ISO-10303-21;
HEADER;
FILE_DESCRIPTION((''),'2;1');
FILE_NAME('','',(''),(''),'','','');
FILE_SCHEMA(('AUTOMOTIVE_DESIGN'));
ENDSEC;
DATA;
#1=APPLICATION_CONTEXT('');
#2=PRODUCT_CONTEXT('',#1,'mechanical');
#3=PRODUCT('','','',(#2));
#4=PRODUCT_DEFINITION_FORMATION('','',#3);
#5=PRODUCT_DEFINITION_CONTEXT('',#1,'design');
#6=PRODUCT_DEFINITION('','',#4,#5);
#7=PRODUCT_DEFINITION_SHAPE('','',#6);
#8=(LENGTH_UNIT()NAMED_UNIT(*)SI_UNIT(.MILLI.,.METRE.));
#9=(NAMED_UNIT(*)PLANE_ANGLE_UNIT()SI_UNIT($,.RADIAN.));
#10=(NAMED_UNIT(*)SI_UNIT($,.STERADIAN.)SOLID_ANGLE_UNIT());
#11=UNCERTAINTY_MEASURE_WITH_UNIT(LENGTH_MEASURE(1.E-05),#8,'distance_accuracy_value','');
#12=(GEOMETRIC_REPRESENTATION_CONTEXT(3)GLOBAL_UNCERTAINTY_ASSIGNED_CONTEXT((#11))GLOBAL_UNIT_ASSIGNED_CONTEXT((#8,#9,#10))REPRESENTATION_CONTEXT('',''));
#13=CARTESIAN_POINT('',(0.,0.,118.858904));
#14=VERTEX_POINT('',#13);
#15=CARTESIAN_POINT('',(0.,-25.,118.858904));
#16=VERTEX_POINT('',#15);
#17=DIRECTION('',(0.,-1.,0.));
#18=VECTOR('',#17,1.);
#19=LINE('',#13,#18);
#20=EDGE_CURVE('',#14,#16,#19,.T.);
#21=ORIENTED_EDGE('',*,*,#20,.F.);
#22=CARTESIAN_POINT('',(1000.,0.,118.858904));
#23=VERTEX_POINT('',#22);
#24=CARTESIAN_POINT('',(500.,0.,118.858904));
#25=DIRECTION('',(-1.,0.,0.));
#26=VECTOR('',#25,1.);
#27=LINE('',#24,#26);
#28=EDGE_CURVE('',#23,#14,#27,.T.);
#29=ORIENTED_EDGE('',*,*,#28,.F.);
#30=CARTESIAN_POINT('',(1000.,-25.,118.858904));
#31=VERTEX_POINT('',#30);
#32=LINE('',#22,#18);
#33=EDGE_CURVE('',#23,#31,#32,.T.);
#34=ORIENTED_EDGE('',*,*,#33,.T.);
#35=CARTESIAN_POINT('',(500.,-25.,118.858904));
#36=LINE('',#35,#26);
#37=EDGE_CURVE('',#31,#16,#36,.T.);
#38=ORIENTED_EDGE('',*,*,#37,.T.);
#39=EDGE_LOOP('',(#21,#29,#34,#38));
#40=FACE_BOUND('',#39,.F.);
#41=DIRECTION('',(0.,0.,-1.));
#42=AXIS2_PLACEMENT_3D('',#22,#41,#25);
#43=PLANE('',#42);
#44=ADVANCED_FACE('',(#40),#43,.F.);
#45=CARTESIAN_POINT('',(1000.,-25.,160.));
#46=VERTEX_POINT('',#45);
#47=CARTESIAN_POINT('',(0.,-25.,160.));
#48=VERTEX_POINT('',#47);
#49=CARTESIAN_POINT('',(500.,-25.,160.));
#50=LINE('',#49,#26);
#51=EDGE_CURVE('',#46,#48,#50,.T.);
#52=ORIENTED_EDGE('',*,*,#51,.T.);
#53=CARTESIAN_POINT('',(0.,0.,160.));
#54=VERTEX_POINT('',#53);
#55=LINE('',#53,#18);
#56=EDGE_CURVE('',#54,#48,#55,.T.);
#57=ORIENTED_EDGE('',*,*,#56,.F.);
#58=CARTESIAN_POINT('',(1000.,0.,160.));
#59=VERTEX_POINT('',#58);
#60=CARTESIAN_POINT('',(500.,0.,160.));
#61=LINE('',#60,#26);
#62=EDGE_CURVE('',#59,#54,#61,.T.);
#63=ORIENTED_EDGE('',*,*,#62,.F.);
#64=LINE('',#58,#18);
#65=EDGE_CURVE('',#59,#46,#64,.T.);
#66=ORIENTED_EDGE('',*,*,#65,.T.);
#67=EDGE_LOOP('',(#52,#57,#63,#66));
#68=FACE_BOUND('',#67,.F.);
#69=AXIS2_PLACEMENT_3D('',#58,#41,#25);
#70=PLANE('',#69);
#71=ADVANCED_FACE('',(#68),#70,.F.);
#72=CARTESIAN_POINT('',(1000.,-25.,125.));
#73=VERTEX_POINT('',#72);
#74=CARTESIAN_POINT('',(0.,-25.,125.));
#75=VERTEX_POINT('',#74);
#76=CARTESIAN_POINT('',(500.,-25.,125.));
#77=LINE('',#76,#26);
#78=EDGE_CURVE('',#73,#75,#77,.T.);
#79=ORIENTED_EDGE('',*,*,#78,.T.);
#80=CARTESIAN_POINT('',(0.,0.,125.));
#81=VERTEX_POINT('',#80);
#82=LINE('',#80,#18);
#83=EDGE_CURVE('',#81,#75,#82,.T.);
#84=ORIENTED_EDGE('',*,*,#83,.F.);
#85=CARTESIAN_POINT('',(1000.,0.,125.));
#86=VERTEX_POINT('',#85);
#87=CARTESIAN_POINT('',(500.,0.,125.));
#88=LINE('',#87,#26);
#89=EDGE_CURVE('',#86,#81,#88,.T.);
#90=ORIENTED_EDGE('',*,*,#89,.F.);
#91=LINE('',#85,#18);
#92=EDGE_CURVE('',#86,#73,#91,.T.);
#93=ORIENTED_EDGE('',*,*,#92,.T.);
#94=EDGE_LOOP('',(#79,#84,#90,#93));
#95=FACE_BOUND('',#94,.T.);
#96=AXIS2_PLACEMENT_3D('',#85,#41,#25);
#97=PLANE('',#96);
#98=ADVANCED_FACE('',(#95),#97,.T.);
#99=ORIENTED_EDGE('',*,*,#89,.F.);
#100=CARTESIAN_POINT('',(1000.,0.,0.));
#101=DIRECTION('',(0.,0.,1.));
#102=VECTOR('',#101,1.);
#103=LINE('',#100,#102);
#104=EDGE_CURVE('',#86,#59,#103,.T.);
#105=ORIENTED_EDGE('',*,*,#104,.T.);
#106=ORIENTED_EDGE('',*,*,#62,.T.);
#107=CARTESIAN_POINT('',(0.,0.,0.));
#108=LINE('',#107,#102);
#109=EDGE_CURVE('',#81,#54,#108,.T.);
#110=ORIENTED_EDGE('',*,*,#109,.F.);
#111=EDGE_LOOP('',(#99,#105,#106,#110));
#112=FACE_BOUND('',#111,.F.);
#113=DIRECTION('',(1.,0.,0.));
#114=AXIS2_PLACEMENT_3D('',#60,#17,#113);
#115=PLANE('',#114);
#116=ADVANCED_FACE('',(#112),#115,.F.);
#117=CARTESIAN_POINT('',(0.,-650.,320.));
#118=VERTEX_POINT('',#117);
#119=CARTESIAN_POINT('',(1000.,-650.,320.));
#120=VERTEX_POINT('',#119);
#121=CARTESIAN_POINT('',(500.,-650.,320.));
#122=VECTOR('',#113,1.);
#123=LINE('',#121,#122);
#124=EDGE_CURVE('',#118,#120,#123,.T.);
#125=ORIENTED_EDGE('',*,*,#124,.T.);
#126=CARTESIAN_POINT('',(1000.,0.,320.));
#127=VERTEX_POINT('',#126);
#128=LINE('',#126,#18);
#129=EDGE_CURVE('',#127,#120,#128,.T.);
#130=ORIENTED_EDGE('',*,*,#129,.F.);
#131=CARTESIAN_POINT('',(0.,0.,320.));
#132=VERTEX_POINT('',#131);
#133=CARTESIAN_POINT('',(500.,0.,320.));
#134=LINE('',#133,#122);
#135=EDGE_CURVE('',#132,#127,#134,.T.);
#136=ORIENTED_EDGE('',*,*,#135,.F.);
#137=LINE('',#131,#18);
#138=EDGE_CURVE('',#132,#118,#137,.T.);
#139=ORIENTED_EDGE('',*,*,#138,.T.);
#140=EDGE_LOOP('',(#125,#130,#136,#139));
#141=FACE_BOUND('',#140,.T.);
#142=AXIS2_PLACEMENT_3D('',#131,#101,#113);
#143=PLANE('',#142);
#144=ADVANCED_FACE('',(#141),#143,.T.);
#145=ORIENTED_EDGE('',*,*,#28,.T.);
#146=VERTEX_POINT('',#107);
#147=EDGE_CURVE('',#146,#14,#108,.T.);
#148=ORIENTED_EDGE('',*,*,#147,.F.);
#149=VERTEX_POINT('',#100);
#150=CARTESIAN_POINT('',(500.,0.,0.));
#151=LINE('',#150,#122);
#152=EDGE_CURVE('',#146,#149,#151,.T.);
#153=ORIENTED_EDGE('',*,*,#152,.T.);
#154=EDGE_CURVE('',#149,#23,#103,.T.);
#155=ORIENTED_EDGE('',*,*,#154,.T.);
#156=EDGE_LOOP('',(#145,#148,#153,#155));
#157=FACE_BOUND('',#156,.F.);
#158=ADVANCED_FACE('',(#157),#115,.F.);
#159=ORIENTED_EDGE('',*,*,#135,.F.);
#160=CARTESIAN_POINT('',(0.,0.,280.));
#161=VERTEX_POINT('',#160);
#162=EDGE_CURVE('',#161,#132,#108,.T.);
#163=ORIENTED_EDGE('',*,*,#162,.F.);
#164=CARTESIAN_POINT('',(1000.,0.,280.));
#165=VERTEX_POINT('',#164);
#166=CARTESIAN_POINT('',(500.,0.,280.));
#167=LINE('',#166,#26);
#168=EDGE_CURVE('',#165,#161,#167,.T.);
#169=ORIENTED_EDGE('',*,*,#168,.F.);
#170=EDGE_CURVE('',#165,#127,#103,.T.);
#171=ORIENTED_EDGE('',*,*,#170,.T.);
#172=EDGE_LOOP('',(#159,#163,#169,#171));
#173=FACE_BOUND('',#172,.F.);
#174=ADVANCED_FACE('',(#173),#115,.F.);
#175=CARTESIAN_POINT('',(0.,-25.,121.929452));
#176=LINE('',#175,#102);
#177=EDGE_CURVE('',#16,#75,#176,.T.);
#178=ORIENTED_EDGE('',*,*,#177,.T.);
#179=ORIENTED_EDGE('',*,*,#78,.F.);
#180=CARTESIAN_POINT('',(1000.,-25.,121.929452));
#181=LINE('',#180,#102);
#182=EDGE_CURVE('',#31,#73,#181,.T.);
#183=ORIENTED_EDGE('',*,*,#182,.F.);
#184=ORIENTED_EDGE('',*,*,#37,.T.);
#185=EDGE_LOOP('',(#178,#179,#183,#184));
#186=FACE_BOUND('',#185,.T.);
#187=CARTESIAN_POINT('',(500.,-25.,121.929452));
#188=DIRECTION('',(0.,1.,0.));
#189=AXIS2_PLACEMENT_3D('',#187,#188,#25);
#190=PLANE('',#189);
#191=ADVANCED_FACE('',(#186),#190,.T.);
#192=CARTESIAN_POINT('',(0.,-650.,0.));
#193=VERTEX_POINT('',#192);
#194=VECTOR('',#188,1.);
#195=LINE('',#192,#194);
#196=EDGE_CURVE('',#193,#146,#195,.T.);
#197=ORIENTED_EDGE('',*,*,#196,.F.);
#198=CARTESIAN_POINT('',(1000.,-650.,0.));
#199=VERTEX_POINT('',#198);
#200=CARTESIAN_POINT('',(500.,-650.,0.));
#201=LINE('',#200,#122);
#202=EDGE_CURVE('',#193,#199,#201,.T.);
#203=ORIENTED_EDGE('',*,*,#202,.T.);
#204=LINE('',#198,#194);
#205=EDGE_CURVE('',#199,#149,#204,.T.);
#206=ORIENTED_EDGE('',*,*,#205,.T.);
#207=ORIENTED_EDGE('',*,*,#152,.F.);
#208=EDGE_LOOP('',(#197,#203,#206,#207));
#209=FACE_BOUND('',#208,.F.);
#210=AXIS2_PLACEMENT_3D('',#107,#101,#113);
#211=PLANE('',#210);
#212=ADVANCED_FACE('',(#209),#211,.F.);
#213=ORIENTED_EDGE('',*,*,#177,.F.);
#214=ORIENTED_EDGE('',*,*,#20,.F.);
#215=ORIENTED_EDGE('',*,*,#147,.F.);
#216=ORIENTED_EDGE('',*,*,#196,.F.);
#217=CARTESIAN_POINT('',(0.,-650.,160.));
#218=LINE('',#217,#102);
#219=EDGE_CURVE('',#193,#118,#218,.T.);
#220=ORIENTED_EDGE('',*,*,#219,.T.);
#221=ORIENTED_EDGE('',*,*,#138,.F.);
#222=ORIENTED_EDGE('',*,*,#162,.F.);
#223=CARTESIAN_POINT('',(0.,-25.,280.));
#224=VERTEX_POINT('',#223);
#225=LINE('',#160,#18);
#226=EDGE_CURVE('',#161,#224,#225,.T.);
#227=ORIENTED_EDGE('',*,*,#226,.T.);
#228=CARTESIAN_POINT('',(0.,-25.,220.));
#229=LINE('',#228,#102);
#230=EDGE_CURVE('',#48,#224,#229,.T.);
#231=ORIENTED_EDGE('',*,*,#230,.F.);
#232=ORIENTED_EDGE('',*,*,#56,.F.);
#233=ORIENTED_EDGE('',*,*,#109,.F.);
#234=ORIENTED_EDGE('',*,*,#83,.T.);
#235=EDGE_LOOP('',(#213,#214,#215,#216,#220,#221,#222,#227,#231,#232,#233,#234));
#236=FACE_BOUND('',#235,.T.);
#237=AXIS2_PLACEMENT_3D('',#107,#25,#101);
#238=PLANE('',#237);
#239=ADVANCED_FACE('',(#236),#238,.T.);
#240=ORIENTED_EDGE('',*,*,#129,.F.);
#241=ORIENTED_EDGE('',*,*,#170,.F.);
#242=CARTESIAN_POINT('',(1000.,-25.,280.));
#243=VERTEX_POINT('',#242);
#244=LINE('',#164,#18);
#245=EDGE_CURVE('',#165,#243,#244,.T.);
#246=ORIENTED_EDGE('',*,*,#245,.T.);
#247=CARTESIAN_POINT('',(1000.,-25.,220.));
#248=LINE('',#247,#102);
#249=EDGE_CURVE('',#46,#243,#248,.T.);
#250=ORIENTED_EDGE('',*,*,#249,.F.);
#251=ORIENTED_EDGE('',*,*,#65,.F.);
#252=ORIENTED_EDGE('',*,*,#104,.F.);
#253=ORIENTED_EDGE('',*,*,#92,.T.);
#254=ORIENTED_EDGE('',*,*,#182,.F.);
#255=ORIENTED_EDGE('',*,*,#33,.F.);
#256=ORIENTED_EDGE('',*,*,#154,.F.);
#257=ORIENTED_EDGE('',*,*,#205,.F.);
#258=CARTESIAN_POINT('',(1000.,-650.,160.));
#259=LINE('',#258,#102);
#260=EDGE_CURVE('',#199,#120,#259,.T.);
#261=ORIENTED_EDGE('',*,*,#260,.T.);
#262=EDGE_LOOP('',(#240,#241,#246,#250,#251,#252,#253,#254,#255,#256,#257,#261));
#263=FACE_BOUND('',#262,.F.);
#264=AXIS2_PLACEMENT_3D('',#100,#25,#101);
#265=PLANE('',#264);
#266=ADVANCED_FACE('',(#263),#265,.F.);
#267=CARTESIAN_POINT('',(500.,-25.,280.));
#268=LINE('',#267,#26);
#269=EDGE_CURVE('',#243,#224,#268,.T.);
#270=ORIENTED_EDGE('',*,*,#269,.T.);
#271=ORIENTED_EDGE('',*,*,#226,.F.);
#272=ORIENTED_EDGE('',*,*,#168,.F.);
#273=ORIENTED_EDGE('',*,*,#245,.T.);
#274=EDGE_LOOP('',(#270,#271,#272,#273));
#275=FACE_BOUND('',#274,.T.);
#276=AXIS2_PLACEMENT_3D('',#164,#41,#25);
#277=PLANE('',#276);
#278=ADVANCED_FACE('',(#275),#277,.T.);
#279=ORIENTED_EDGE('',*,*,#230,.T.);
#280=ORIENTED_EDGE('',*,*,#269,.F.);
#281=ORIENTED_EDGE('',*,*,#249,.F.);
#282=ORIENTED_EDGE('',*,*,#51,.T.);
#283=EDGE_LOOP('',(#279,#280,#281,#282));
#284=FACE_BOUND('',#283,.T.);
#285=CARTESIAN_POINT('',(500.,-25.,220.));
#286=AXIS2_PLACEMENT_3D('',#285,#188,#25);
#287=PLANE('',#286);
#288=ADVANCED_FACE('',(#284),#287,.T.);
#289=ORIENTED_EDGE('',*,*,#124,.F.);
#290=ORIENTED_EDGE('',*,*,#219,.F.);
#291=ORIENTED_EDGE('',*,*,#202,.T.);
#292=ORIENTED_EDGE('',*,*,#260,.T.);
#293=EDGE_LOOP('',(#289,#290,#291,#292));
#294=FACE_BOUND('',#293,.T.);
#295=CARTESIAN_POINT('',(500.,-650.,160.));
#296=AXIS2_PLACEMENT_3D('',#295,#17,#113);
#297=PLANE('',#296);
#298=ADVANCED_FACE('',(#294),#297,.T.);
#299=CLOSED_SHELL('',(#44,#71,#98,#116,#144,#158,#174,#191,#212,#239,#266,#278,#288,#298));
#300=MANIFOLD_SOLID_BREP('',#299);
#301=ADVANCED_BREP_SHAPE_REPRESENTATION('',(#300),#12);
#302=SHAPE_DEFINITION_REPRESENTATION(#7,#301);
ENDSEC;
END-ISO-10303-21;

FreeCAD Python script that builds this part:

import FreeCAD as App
import Part
import Sketcher

V = App.Vector
Q = App.Units.Quantity


def add_polygon(sketch, points):
    """Adds a closed chain of lines whose ends are joined by coincident constraints."""
    first, n = sketch.GeometryCount, len(points)
    for a, b in zip(points, points[1:] + points[:1]):
        sketch.addGeometry(Part.LineSegment(App.Vector(*a, 0), App.Vector(*b, 0)), False)
    for i in range(n):
        sketch.addConstraint(Sketcher.Constraint("Coincident", first + i, 2, first + (i + 1) % n, 1))

doc = App.newDocument("Part")
params = doc.addObject("Spreadsheet::Sheet", "Params")
for row, (alias, value) in enumerate([
    ("sketch1_width", "1000 mm"),
    ("sketch1_height", "320 mm"),
    ("pad1_length", "650 mm"),
    ("sketch2_width", "1000 mm"),
    ("sketch2_height", "120 mm"),
    ("sketch2_height2", "125 mm"),
    ("pad2_length", "28 mm"),
    ("sketch3_width", "1000 mm"),
    ("sketch3_height", "120 mm"),
    ("pocket1_length", "25 mm"),
    ("sketch4_width", "1000 mm"),
    ("pocket2_length", "25 mm"),
], start=1):
    params.set(f"A{row}", alias)
    params.set(f"B{row}", "=" + value)
    params.setAlias(f"B{row}", alias)

body = doc.addObject("PartDesign::Body", "Body")

# Sketch on XZ plane
sketch1 = doc.addObject("Sketcher::SketchObject", "Sketch")
body.addObject(sketch1)
sketch1.AttachmentSupport = (doc.XZ_Plane, [""])
sketch1.MapMode = "FlatFace"
add_polygon(sketch1, [(0, 320), (0, 0), (1000, 0), (1000, 320)])  # lines 0-3
sketch1.addConstraint([
    Sketcher.Constraint("Vertical", 0),
    Sketcher.Constraint("Horizontal", 1),
    Sketcher.Constraint("Vertical", 2),
    Sketcher.Constraint("Horizontal", 3),
    Sketcher.Constraint("Coincident", 0, 2, -1, 1),
    Sketcher.Constraint("DistanceX", 1, 1, 1, 2, Q("1000 mm")),
    Sketcher.Constraint("DistanceY", 0, 2, 0, 1, Q("320 mm")),
])
sketch1.setExpression("Constraints[9]", "Params.sketch1_width")
sketch1.setExpression("Constraints[10]", "Params.sketch1_height")
pad1 = doc.addObject("PartDesign::Pad", "Pad")
body.addObject(pad1)
pad1.Profile = sketch1
pad1.setExpression("Length", "Params.pad1_length")

# Sketch on XZ plane
sketch2 = doc.addObject("Sketcher::SketchObject", "Sketch001")
body.addObject(sketch2)
sketch2.AttachmentSupport = (doc.XZ_Plane, [""])
sketch2.MapMode = "FlatFace"
add_polygon(sketch2, [(1000, 280), (1000, 160), (0, 160), (0, 280)])  # lines 0-3
add_polygon(sketch2, [(1000, 125), (1000, 0), (0, 0), (0, 125)])  # lines 4-7
sketch2.addConstraint([
    Sketcher.Constraint("Vertical", 0),
    Sketcher.Constraint("Horizontal", 1),
    Sketcher.Constraint("Vertical", 2),
    Sketcher.Constraint("Horizontal", 3),
    Sketcher.Constraint("Vertical", 4),
    Sketcher.Constraint("Horizontal", 5),
    Sketcher.Constraint("Vertical", 6),
    Sketcher.Constraint("Horizontal", 7),
    Sketcher.Constraint("Coincident", 5, 2, -1, 1),
    Sketcher.Constraint("PointOnObject", 1, 2, -2),
    Sketcher.Constraint("Vertical", 3, 2, 4, 2),
    Sketcher.Constraint("DistanceX", 1, 2, 1, 1, Q("1000 mm")),
    Sketcher.Constraint("DistanceY", 0, 2, 0, 1, Q("120 mm")),
    Sketcher.Constraint("DistanceY", 4, 2, 4, 1, Q("125 mm")),
    Sketcher.Constraint("DistanceY", -1, 1, 0, 2, Q("160 mm")),
])
sketch2.setExpression("Constraints[19]", "Params.sketch2_width")
sketch2.setExpression("Constraints[20]", "Params.sketch2_height")
sketch2.setExpression("Constraints[21]", "Params.sketch2_height2")
pad2 = doc.addObject("PartDesign::Pad", "Pad001")
body.addObject(pad2)
pad2.Profile = sketch2
pad2.setExpression("Length", "Params.pad2_length")

# Sketch on XZ plane
sketch3 = doc.addObject("Sketcher::SketchObject", "Sketch002")
body.addObject(sketch3)
sketch3.AttachmentSupport = (doc.XZ_Plane, [""])
sketch3.MapMode = "FlatFace"
add_polygon(sketch3, [(1000, 280), (1000, 160), (0, 160), (0, 280)])  # lines 0-3
sketch3.addConstraint([
    Sketcher.Constraint("Vertical", 0),
    Sketcher.Constraint("Horizontal", 1),
    Sketcher.Constraint("Vertical", 2),
    Sketcher.Constraint("Horizontal", 3),
    Sketcher.Constraint("PointOnObject", 1, 2, -2),
    Sketcher.Constraint("DistanceX", 1, 2, 1, 1, Q("1000 mm")),
    Sketcher.Constraint("DistanceY", 0, 2, 0, 1, Q("120 mm")),
    Sketcher.Constraint("DistanceY", -1, 1, 0, 2, Q("160 mm")),
])
sketch3.setExpression("Constraints[9]", "Params.sketch3_width")
sketch3.setExpression("Constraints[10]", "Params.sketch3_height")
pocket1 = doc.addObject("PartDesign::Pocket", "Pocket")
body.addObject(pocket1)
pocket1.Profile = sketch3
pocket1.setExpression("Length", "Params.pocket1_length")
pocket1.Reversed = True

# Sketch on XZ plane
sketch4 = doc.addObject("Sketcher::SketchObject", "Sketch003")
body.addObject(sketch4)
sketch4.AttachmentSupport = (doc.XZ_Plane, [""])
sketch4.MapMode = "FlatFace"
add_polygon(sketch4, [(1000, 125), (1000, 119), (0, 119), (0, 125)])  # lines 0-3
sketch4.addConstraint([
    Sketcher.Constraint("Vertical", 0),
    Sketcher.Constraint("Horizontal", 1),
    Sketcher.Constraint("Vertical", 2),
    Sketcher.Constraint("Horizontal", 3),
    Sketcher.Constraint("PointOnObject", 1, 2, -2),
    Sketcher.Constraint("DistanceX", 1, 2, 1, 1, Q("1000 mm")),
    Sketcher.Constraint("DistanceY", -1, 1, 2, 2, Q("125 mm")),
    Sketcher.Constraint("DistanceY", 0, 2, 0, 1, Q("6.141096 mm")),
])
sketch4.setExpression("Constraints[9]", "Params.sketch4_width")
pocket2 = doc.addObject("PartDesign::Pocket", "Pocket001")
body.addObject(pocket2)
pocket2.Profile = sketch4
pocket2.setExpression("Length", "Params.pocket2_length")
pocket2.Reversed = True

doc.recompute()
